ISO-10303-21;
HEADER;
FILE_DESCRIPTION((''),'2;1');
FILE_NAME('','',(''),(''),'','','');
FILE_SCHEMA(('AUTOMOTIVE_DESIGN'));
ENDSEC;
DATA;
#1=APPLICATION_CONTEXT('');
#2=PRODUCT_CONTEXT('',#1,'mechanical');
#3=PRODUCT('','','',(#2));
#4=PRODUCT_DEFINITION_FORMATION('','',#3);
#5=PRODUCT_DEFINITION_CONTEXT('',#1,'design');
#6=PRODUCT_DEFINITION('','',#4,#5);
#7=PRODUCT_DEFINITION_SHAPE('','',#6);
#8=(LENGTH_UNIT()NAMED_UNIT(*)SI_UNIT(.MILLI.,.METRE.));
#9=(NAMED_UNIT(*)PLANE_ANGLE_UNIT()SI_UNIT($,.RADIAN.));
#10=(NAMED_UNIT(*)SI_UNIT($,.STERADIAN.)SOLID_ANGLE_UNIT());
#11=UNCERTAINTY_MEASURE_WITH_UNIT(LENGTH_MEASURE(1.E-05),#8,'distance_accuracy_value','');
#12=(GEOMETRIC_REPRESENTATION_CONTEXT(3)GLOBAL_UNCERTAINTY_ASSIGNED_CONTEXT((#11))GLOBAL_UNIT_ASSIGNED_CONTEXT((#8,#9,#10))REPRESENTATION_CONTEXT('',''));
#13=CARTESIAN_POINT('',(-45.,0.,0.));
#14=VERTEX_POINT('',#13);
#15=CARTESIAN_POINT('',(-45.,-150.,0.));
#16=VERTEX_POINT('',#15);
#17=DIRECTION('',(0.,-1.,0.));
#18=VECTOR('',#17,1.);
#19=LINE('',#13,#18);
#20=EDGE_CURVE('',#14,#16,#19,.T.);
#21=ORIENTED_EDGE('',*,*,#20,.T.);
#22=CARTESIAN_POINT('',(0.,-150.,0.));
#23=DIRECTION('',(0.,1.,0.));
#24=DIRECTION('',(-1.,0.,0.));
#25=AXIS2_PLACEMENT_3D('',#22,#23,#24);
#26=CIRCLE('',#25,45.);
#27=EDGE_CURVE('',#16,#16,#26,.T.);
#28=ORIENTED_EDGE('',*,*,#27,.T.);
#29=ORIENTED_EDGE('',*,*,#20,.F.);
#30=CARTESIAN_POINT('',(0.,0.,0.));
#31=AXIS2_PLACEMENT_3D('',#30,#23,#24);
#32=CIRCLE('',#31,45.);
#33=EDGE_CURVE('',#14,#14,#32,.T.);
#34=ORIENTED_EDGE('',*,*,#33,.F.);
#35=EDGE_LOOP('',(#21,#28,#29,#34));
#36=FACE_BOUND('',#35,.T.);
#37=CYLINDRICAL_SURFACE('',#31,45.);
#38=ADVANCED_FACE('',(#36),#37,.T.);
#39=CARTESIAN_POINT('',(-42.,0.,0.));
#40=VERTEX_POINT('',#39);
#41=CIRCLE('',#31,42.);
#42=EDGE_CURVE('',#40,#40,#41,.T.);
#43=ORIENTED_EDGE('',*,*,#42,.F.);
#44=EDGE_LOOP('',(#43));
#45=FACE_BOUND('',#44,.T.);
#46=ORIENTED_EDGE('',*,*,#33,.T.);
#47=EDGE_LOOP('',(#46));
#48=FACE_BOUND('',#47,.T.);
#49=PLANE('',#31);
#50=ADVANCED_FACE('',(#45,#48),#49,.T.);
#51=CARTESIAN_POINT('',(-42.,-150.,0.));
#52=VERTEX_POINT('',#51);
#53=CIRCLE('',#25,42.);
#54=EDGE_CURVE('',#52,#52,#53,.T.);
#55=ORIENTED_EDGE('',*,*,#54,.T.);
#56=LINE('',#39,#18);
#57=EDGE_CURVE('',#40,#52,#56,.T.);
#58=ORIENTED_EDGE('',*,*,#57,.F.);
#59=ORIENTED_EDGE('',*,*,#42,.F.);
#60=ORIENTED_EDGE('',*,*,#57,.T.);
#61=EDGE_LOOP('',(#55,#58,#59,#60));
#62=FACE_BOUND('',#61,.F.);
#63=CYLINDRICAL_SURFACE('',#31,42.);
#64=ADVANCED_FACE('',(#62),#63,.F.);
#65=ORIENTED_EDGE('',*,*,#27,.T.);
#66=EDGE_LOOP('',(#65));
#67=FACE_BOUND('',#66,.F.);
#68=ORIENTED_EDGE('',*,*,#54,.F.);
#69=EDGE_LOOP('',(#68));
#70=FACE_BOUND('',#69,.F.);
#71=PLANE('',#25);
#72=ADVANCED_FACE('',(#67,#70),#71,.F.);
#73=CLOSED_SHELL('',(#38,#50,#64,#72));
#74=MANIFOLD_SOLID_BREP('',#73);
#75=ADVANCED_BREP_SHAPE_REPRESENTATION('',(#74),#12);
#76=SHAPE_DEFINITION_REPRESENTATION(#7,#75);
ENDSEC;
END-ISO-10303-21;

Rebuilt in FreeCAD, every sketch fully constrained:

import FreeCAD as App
import Part
import Sketcher
Q = App.Units.Quantity

doc = App.newDocument("Part")
body = doc.addObject("PartDesign::Body", "Body")

# Sketch on XZ plane
sketch1 = body.newObject("Sketcher::SketchObject", "Sketch")
sketch1.AttachmentSupport = (doc.getObject("XZ_Plane"), [""])
sketch1.MapMode = "FlatFace"
sketch1.addGeometry([
    Part.Circle(App.Vector(0, 0, 0), App.Vector(0, 0, 1), 45),
    Part.Circle(App.Vector(0, 0, 0), App.Vector(0, 0, 1), 42),
], False)
sketch1.addConstraint([
    Sketcher.Constraint("Coincident", 0, 3, -1, 1),
    Sketcher.Constraint("Coincident", 1, 3, -1, 1),
    Sketcher.Constraint("Diameter", 0, Q("90 mm")),
    Sketcher.Constraint("Diameter", 1, Q("84 mm")),
])
pad1 = body.newObject("PartDesign::Pad", "Pad")
pad1.Profile = sketch1
pad1.Length = 150

doc.recompute()
